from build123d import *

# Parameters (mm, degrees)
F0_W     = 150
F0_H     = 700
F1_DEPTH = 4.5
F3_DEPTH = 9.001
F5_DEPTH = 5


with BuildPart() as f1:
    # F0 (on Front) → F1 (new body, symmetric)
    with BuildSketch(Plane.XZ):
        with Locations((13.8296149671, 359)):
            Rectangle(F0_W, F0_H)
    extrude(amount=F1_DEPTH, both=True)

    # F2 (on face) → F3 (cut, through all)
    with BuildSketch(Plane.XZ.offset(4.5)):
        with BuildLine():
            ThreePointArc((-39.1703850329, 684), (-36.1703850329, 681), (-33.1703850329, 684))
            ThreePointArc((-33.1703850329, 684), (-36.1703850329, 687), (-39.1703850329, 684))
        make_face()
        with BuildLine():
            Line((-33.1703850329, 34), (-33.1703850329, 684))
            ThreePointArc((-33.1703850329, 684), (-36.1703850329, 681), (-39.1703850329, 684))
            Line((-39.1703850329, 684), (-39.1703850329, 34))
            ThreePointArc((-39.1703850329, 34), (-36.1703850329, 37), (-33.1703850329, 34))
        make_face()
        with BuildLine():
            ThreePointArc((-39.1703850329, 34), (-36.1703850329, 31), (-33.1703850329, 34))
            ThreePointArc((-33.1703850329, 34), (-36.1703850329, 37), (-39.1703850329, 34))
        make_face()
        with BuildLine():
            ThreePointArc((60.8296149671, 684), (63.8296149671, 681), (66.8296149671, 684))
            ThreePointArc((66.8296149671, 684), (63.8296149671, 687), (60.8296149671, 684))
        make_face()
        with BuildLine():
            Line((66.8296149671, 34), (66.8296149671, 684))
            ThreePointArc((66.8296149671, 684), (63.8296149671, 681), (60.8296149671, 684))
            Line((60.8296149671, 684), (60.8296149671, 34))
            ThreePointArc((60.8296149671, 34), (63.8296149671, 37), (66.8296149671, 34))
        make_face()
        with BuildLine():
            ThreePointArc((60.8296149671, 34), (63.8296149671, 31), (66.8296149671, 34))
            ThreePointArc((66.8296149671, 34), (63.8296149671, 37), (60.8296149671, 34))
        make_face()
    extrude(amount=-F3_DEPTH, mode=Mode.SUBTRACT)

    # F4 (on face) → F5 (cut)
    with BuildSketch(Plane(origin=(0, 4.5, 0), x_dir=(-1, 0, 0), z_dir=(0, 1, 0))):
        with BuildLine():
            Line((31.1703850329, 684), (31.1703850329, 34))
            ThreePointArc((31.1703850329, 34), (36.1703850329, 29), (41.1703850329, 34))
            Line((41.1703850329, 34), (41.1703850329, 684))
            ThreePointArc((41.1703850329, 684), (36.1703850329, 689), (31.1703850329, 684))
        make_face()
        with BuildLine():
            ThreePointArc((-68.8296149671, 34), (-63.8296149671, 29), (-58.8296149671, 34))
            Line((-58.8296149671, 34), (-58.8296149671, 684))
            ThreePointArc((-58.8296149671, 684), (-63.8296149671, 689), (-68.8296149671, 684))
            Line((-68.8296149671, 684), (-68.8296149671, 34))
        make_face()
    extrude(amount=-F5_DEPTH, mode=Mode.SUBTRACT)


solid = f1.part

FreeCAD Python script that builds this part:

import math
import FreeCAD as App
import Part
import Sketcher
Q = App.Units.Quantity


def add_polygon(sketch, points):
    """Adds a closed chain of lines whose ends are joined by coincident constraints."""
    first, n = sketch.GeometryCount, len(points)
    for a, b in zip(points, points[1:] + points[:1]):
        sketch.addGeometry(Part.LineSegment(App.Vector(*a, 0), App.Vector(*b, 0)), False)
    for i in range(n):
        sketch.addConstraint(Sketcher.Constraint("Coincident", first + i, 2, first + (i + 1) % n, 1))

doc = App.newDocument("Part")
body = doc.addObject("PartDesign::Body", "Body")

sketch1 = doc.addObject("Sketcher::SketchObject", "Sketch")
body.addObject(sketch1)
sketch1.AttachmentSupport = (doc.XZ_Plane, [""])
sketch1.MapMode = "FlatFace"
add_polygon(sketch1, [(-61, 709), (-61, 9), (89, 9), (89, 709)])
sketch1.addConstraint(Sketcher.Constraint("Vertical", 0))
sketch1.addConstraint(Sketcher.Constraint("Horizontal", 1))
sketch1.addConstraint(Sketcher.Constraint("Vertical", 2))
sketch1.addConstraint(Sketcher.Constraint("Horizontal", 3))
sketch1.addConstraint(Sketcher.Constraint("DistanceX", 1, 1, 1, 2, Q("150 mm")))
sketch1.addConstraint(Sketcher.Constraint("DistanceY", 0, 2, 0, 1, Q("700 mm")))
sketch1.addConstraint(Sketcher.Constraint("DistanceY", -1, 1, 0, 2, Q("9 mm")))
sketch1.addConstraint(Sketcher.Constraint("DistanceX", 0, 2, -1, 1, Q("61.170385 mm")))
pad1 = doc.addObject("PartDesign::Pad", "Pad")
body.addObject(pad1)
pad1.Profile = sketch1
pad1.Length = 9
pad1.Midplane = True

sketch2 = doc.addObject("Sketcher::SketchObject", "Sketch001")
body.addObject(sketch2)
sketch2.AttachmentSupport = (doc.XZ_Plane, [""])
sketch2.MapMode = "FlatFace"
sketch2.AttachmentOffset = App.Placement(App.Vector(0, 0, 4.5), App.Rotation())
sketch2.addGeometry(Part.ArcOfCircle(Part.Circle(App.Vector(-36.2, 684, 0), App.Vector(0, 0, 1), 3), math.radians(0), math.radians(180)), False)
sketch2.addGeometry(Part.LineSegment(App.Vector(-39.2, 684, 0), App.Vector(-39.2, 34, 0)), False)
sketch2.addGeometry(Part.ArcOfCircle(Part.Circle(App.Vector(-36.2, 34, 0), App.Vector(0, 0, 1), 3), math.radians(180), math.radians(360)), False)
sketch2.addGeometry(Part.LineSegment(App.Vector(-33.2, 34, 0), App.Vector(-33.2, 684, 0)), False)
sketch2.addGeometry(Part.ArcOfCircle(Part.Circle(App.Vector(63.8, 684, 0), App.Vector(0, 0, 1), 3), math.radians(0), math.radians(180)), False)
sketch2.addGeometry(Part.LineSegment(App.Vector(60.8, 684, 0), App.Vector(60.8, 34, 0)), False)
sketch2.addGeometry(Part.ArcOfCircle(Part.Circle(App.Vector(63.8, 34, 0), App.Vector(0, 0, 1), 3), math.radians(180), math.radians(360)), False)
sketch2.addGeometry(Part.LineSegment(App.Vector(66.8, 34, 0), App.Vector(66.8, 684, 0)), False)
sketch2.addConstraint(Sketcher.Constraint("Tangent", 0, 2, 1, 1))
sketch2.addConstraint(Sketcher.Constraint("Tangent", 1, 2, 2, 1))
sketch2.addConstraint(Sketcher.Constraint("Tangent", 2, 2, 3, 1))
sketch2.addConstraint(Sketcher.Constraint("Tangent", 3, 2, 0, 1))
sketch2.addConstraint(Sketcher.Constraint("Tangent", 4, 2, 5, 1))
sketch2.addConstraint(Sketcher.Constraint("Tangent", 5, 2, 6, 1))
sketch2.addConstraint(Sketcher.Constraint("Tangent", 6, 2, 7, 1))
sketch2.addConstraint(Sketcher.Constraint("Tangent", 7, 2, 4, 1))
sketch2.addConstraint(Sketcher.Constraint("Vertical", 1))
sketch2.addConstraint(Sketcher.Constraint("Vertical", 3))
sketch2.addConstraint(Sketcher.Constraint("Vertical", 5))
sketch2.addConstraint(Sketcher.Constraint("Vertical", 7))
sketch2.addConstraint(Sketcher.Constraint("Equal", 2, 4))
sketch2.addConstraint(Sketcher.Constraint("Horizontal", 0, 3, 4, 3))
sketch2.addConstraint(Sketcher.Constraint("Horizontal", 2, 3, 6, 3))
sketch2.addConstraint(Sketcher.Constraint("Radius", 0, Q("3 mm")))
sketch2.addConstraint(Sketcher.Constraint("DistanceY", 1, 2, 1, 1, Q("650 mm")))
sketch2.addConstraint(Sketcher.Constraint("DistanceY", -1, 1, 0, 3, Q("684 mm")))
sketch2.addConstraint(Sketcher.Constraint("DistanceX", 0, 3, 4, 3, Q("100 mm")))
sketch2.addConstraint(Sketcher.Constraint("DistanceX", 0, 3, -1, 1, Q("36.170385 mm")))
pocket1 = doc.addObject("PartDesign::Pocket", "Pocket")
body.addObject(pocket1)
pocket1.Profile = sketch2
pocket1.Type = "ThroughAll"

sketch3 = doc.addObject("Sketcher::SketchObject", "Sketch002")
body.addObject(sketch3)
sketch3.AttachmentSupport = (doc.XZ_Plane, [""])
sketch3.MapMode = "FlatFace"
sketch3.AttachmentOffset = App.Placement(App.Vector(0, 0, -4.5), App.Rotation())
sketch3.addGeometry(Part.LineSegment(App.Vector(-31, 684, 0), App.Vector(-31, 34, 0)), False)
sketch3.addGeometry(Part.ArcOfCircle(Part.Circle(App.Vector(-36, 34, 0), App.Vector(0, 0, 1), 5), math.radians(180), math.radians(360)), False)
sketch3.addGeometry(Part.LineSegment(App.Vector(-41, 34, 0), App.Vector(-41, 684, 0)), False)
sketch3.addGeometry(Part.ArcOfCircle(Part.Circle(App.Vector(-36, 684, 0), App.Vector(0, 0, 1), 5), math.radians(0), math.radians(180)), False)
sketch3.addGeometry(Part.ArcOfCircle(Part.Circle(App.Vector(64, 34, 0), App.Vector(0, 0, 1), 5), math.radians(180), math.radians(360)), False)
sketch3.addGeometry(Part.LineSegment(App.Vector(59, 34, 0), App.Vector(59, 684, 0)), False)
sketch3.addGeometry(Part.ArcOfCircle(Part.Circle(App.Vector(64, 684, 0), App.Vector(0, 0, 1), 5), math.radians(0), math.radians(180)), False)
sketch3.addGeometry(Part.LineSegment(App.Vector(69, 684, 0), App.Vector(69, 34, 0)), False)
sketch3.addConstraint(Sketcher.Constraint("Tangent", 0, 2, 1, 2))
sketch3.addConstraint(Sketcher.Constraint("Tangent", 1, 1, 2, 1))
sketch3.addConstraint(Sketcher.Constraint("Tangent", 2, 2, 3, 2))
sketch3.addConstraint(Sketcher.Constraint("Tangent", 3, 1, 0, 1))
sketch3.addConstraint(Sketcher.Constraint("Tangent", 4, 1, 5, 1))
sketch3.addConstraint(Sketcher.Constraint("Tangent", 5, 2, 6, 2))
sketch3.addConstraint(Sketcher.Constraint("Tangent", 6, 1, 7, 1))
sketch3.addConstraint(Sketcher.Constraint("Tangent", 7, 2, 4, 2))
sketch3.addConstraint(Sketcher.Constraint("Vertical", 0))
sketch3.addConstraint(Sketcher.Constraint("Vertical", 2))
sketch3.addConstraint(Sketcher.Constraint("Vertical", 5))
sketch3.addConstraint(Sketcher.Constraint("Vertical", 7))
sketch3.addConstraint(Sketcher.Constraint("Equal", 3, 4))
sketch3.addConstraint(Sketcher.Constraint("Horizontal", 1, 3, 4, 3))
sketch3.addConstraint(Sketcher.Constraint("Horizontal", 3, 3, 6, 3))
sketch3.addConstraint(Sketcher.Constraint("Radius", 1, Q("5 mm")))
sketch3.addConstraint(Sketcher.Constraint("DistanceY", 0, 2, 0, 1, Q("650 mm")))
sketch3.addConstraint(Sketcher.Constraint("DistanceY", -1, 1, 1, 3, Q("34 mm")))
sketch3.addConstraint(Sketcher.Constraint("DistanceX", 1, 3, 4, 3, Q("100 mm")))
sketch3.addConstraint(Sketcher.Constraint("DistanceX", 1, 3, -1, 1, Q("36.170385 mm")))
pocket2 = doc.addObject("PartDesign::Pocket", "Pocket001")
body.addObject(pocket2)
pocket2.Profile = sketch3
pocket2.Length = 5
pocket2.Reversed = True

doc.recompute()
